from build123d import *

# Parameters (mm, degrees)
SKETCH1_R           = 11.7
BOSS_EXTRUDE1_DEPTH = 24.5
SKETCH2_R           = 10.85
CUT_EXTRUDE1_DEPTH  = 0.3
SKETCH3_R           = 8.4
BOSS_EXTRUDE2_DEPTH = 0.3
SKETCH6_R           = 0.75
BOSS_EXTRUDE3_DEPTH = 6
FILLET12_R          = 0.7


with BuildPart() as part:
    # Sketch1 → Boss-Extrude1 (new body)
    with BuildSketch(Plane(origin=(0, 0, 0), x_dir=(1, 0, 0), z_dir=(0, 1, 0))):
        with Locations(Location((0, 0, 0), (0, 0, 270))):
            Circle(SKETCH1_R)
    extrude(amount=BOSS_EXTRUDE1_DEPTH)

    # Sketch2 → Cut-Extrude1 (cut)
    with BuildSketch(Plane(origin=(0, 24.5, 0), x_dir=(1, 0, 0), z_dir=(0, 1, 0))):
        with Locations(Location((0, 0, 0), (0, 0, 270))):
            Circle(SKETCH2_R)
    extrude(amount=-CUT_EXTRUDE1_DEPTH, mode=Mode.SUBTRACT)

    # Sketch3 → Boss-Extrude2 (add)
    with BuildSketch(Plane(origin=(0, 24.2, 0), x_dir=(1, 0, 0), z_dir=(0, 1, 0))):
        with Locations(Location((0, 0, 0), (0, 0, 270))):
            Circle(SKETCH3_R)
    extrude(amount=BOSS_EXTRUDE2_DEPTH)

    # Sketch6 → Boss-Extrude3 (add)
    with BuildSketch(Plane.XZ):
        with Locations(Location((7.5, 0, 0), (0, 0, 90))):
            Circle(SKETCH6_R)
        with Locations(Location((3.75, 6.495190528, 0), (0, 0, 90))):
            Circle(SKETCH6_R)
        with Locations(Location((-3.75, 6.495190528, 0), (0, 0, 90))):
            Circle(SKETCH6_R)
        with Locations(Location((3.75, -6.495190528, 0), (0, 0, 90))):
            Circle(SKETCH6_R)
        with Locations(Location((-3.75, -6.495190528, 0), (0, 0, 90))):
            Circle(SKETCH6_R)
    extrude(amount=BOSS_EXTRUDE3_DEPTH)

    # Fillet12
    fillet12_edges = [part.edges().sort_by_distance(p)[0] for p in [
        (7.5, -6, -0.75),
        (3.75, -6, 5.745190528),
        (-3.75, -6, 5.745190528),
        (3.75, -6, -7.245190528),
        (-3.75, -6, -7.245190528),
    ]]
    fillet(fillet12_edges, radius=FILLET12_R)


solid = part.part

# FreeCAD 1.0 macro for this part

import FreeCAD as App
import Part
import Sketcher

V = App.Vector
Q = App.Units.Quantity


def edges_at(feature, points):
    """Names of the edges that pass closest to the given points."""
    edges = feature.Shape.Edges
    near = lambda p: min(range(len(edges)), key=lambda i: edges[i].distToShape(Part.Vertex(*p))[0])
    return sorted({f"Edge{near(p) + 1}" for p in points})

doc = App.newDocument("Part")
params = doc.addObject("Spreadsheet::Sheet", "Params")
for row, (alias, value) in enumerate([
    ("sketch1_diameter", "23.4 mm"),
    ("pad1_length", "24.5 mm"),
    ("sketch2_diameter", "21.7 mm"),
    ("pocket1_length", "0.3 mm"),
    ("sketch3_diameter", "16.8 mm"),
    ("pad2_length", "0.3 mm"),
    ("sketch4_diameter", "1.5 mm"),
    ("pad3_length", "6 mm"),
    ("fillet_radius", "0.7 mm"),
], start=1):
    params.set(f"A{row}", alias)
    params.set(f"B{row}", "=" + value)
    params.setAlias(f"B{row}", alias)

body = doc.addObject("PartDesign::Body", "Body")

# Sketch on XZ plane
sketch1 = body.newObject("Sketcher::SketchObject", "Sketch")
sketch1.AttachmentSupport = (doc.getObject("XZ_Plane"), [""])
sketch1.MapMode = "FlatFace"
sketch1.addGeometry(Part.Circle(V(0, 0, 0), V(0, 0, 1), 12), False)
sketch1.addConstraint(Sketcher.Constraint("Coincident", 0, 3, -1, 1))
sketch1.addConstraint(Sketcher.Constraint("Diameter", 0, Q("23.4 mm")))
sketch1.setExpression("Constraints[1]", "Params.sketch1_diameter")
pad1 = body.newObject("PartDesign::Pad", "Pad")
pad1.Profile = sketch1
pad1.setExpression("Length", "Params.pad1_length")
pad1.Reversed = True

# Sketch on XZ plane
sketch2 = body.newObject("Sketcher::SketchObject", "Sketch001")
sketch2.AttachmentSupport = (doc.getObject("XZ_Plane"), [""])
sketch2.MapMode = "FlatFace"
sketch2.AttachmentOffset = App.Placement(V(0, 0, -24.5), App.Rotation())
sketch2.addGeometry(Part.Circle(V(0, 0, 0), V(0, 0, 1), 11), False)
sketch2.addConstraint(Sketcher.Constraint("Coincident", 0, 3, -1, 1))
sketch2.addConstraint(Sketcher.Constraint("Diameter", 0, Q("21.7 mm")))
sketch2.setExpression("Constraints[1]", "Params.sketch2_diameter")
pocket1 = body.newObject("PartDesign::Pocket", "Pocket")
pocket1.Profile = sketch2
pocket1.setExpression("Length", "Params.pocket1_length")
pocket1.Reversed = True

# Sketch on XZ plane
sketch3 = body.newObject("Sketcher::SketchObject", "Sketch002")
sketch3.AttachmentSupport = (doc.getObject("XZ_Plane"), [""])
sketch3.MapMode = "FlatFace"
sketch3.AttachmentOffset = App.Placement(V(0, 0, -24.2), App.Rotation())
sketch3.addGeometry(Part.Circle(V(0, 0, 0), V(0, 0, 1), 8), False)
sketch3.addConstraint(Sketcher.Constraint("Coincident", 0, 3, -1, 1))
sketch3.addConstraint(Sketcher.Constraint("Diameter", 0, Q("16.8 mm")))
sketch3.setExpression("Constraints[1]", "Params.sketch3_diameter")
pad2 = body.newObject("PartDesign::Pad", "Pad001")
pad2.Profile = sketch3
pad2.setExpression("Length", "Params.pad2_length")
pad2.Reversed = True

# Sketch on XZ plane
sketch4 = body.newObject("Sketcher::SketchObject", "Sketch003")
sketch4.AttachmentSupport = (doc.getObject("XZ_Plane"), [""])
sketch4.MapMode = "FlatFace"
sketch4.addGeometry(Part.Circle(V(7.5, 0, 0), V(0, 0, 1), 0.8), False)
sketch4.addGeometry(Part.Circle(V(3.8, 6.5, 0), V(0, 0, 1), 0.8), False)
sketch4.addGeometry(Part.Circle(V(-3.8, 6.5, 0), V(0, 0, 1), 0.8), False)
sketch4.addGeometry(Part.Circle(V(3.8, -6.5, 0), V(0, 0, 1), 0.8), False)
sketch4.addGeometry(Part.Circle(V(-3.8, -6.5, 0), V(0, 0, 1), 0.8), False)
sketch4.addConstraint(Sketcher.Constraint("Equal", 0, 1))
sketch4.addConstraint(Sketcher.Constraint("Equal", 1, 2))
sketch4.addConstraint(Sketcher.Constraint("Equal", 2, 3))
sketch4.addConstraint(Sketcher.Constraint("Equal", 3, 4))
sketch4.addConstraint(Sketcher.Constraint("Symmetric", 2, 3, 3, 3, -1, 1))
sketch4.addConstraint(Sketcher.Constraint("Symmetric", 1, 3, 4, 3, -1, 1))
sketch4.addConstraint(Sketcher.Constraint("Symmetric", 1, 3, 2, 3, -2))
sketch4.addConstraint(Sketcher.Constraint("PointOnObject", 0, 3, -1))
sketch4.addConstraint(Sketcher.Constraint("Diameter", 0, Q("1.5 mm")))
sketch4.addConstraint(Sketcher.Constraint("DistanceX", -1, 1, 0, 3, Q("7.5 mm")))
sketch4.addConstraint(Sketcher.Constraint("DistanceX", 2, 3, 1, 3, Q("7.5 mm")))
sketch4.addConstraint(Sketcher.Constraint("DistanceY", -1, 1, 1, 3, Q("6.495191 mm")))
sketch4.setExpression("Constraints[8]", "Params.sketch4_diameter")
pad3 = body.newObject("PartDesign::Pad", "Pad002")
pad3.Profile = sketch4
pad3.setExpression("Length", "Params.pad3_length")
doc.recompute()

fillet = body.newObject("PartDesign::Fillet", "Fillet")
fillet.Base = (pad3, edges_at(pad3, [
    (7.5, -6, -0.75),
    (3.75, -6, 5.745),
    (-3.75, -6, 5.745),
    (3.75, -6, -7.245),
    (-3.75, -6, -7.245),
]))
fillet.setExpression("Radius", "Params.fillet_radius")

doc.recompute()
